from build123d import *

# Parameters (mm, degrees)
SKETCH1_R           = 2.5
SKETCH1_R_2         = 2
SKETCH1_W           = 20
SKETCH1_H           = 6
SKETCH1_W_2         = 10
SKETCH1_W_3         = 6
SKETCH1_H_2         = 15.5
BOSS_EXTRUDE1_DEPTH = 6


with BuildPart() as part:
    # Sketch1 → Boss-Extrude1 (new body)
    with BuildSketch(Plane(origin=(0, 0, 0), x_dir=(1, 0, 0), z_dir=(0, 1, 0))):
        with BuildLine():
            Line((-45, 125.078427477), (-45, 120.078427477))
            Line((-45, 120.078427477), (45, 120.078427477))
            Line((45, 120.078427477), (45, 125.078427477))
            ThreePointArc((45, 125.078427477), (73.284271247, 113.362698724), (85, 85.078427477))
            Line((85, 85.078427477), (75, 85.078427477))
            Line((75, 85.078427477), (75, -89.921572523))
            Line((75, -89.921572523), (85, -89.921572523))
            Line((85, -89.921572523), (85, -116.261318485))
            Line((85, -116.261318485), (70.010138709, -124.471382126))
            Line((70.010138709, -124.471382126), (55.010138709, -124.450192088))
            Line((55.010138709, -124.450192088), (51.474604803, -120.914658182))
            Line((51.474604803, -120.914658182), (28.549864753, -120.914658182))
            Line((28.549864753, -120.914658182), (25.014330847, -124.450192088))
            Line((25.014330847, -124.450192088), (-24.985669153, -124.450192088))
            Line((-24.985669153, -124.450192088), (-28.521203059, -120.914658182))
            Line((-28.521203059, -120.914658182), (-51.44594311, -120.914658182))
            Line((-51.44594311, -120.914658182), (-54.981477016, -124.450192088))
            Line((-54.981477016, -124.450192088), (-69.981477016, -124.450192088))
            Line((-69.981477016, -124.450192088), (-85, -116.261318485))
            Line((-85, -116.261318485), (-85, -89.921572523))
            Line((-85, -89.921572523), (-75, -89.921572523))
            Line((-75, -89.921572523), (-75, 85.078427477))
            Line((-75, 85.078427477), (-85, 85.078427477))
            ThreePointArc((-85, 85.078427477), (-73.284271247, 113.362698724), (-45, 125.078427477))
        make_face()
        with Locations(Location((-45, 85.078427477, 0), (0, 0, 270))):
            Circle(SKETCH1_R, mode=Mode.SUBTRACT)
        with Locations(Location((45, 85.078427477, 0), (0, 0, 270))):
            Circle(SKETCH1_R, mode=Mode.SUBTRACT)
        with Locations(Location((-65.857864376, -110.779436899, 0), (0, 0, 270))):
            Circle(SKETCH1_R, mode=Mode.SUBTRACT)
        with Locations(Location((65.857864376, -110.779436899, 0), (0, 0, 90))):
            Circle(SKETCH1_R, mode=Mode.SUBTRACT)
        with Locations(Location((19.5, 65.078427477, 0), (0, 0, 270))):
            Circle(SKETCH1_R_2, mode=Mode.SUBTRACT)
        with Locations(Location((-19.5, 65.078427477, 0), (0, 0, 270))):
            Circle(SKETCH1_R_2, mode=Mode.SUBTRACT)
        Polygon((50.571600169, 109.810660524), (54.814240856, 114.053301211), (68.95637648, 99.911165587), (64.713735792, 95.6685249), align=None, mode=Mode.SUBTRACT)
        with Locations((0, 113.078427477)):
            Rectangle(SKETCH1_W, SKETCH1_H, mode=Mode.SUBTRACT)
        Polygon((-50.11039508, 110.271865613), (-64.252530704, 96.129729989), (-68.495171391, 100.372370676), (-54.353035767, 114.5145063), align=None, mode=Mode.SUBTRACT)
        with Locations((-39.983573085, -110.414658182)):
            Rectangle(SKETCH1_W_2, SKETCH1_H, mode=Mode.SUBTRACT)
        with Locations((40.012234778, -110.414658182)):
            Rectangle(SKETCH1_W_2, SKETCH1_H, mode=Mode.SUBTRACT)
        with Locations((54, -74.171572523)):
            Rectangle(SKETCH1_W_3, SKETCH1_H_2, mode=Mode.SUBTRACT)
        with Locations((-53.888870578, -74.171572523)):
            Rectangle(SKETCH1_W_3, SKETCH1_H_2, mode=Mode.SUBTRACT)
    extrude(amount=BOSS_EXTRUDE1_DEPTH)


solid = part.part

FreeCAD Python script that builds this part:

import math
import FreeCAD as App
import Part
import Sketcher
from FreeCAD import Vector

doc = App.newDocument("Part")
body = doc.addObject("PartDesign::Body", "Body")

# Sketch on XZ plane
sketch1 = doc.addObject("Sketcher::SketchObject", "Sketch")
body.addObject(sketch1)
sketch1.AttachmentSupport = (doc.XZ_Plane, [""])
sketch1.MapMode = "FlatFace"
sketch1.addGeometry(Part.LineSegment(Vector(-45, -120.1, 0), Vector(-45, -125.1, 0)), False)
sketch1.addGeometry(Part.ArcOfCircle(Part.Circle(Vector(-45, -85.1, 0), Vector(0, 0, 1), 40), math.radians(-180), math.radians(-90)), False)
sketch1.addGeometry(Part.LineSegment(Vector(-85, -85.1, 0), Vector(-75, -85.1, 0)), False)
sketch1.addGeometry(Part.LineSegment(Vector(-75, -85.1, 0), Vector(-75, 89.9, 0)), False)
sketch1.addGeometry(Part.LineSegment(Vector(-75, 89.9, 0), Vector(-85, 89.9, 0)), False)
sketch1.addGeometry(Part.LineSegment(Vector(-85, 89.9, 0), Vector(-85, 116.3, 0)), False)
sketch1.addGeometry(Part.LineSegment(Vector(-85, 116.3, 0), Vector(-70, 124.5, 0)), False)
sketch1.addGeometry(Part.LineSegment(Vector(-70, 124.5, 0), Vector(-55, 124.5, 0)), False)
sketch1.addGeometry(Part.LineSegment(Vector(-55, 124.5, 0), Vector(-51.4, 120.9, 0)), False)
sketch1.addGeometry(Part.LineSegment(Vector(-51.4, 120.9, 0), Vector(-28.5, 120.9, 0)), False)
sketch1.addGeometry(Part.LineSegment(Vector(-28.5, 120.9, 0), Vector(-25, 124.5, 0)), False)
sketch1.addGeometry(Part.LineSegment(Vector(-25, 124.5, 0), Vector(25, 124.5, 0)), False)
sketch1.addGeometry(Part.LineSegment(Vector(25, 124.5, 0), Vector(28.5, 120.9, 0)), False)
sketch1.addGeometry(Part.LineSegment(Vector(28.5, 120.9, 0), Vector(51.5, 120.9, 0)), False)
sketch1.addGeometry(Part.LineSegment(Vector(51.5, 120.9, 0), Vector(55, 124.5, 0)), False)
sketch1.addGeometry(Part.LineSegment(Vector(55, 124.5, 0), Vector(70, 124.5, 0)), False)
sketch1.addGeometry(Part.LineSegment(Vector(70, 124.5, 0), Vector(85, 116.3, 0)), False)
sketch1.addGeometry(Part.LineSegment(Vector(85, 116.3, 0), Vector(85, 89.9, 0)), False)
sketch1.addGeometry(Part.LineSegment(Vector(85, 89.9, 0), Vector(75, 89.9, 0)), False)
sketch1.addGeometry(Part.LineSegment(Vector(75, 89.9, 0), Vector(75, -85.1, 0)), False)
sketch1.addGeometry(Part.LineSegment(Vector(75, -85.1, 0), Vector(85, -85.1, 0)), False)
sketch1.addGeometry(Part.ArcOfCircle(Part.Circle(Vector(45, -85.1, 0), Vector(0, 0, 1), 40), math.radians(-90), math.radians(0)), False)
sketch1.addGeometry(Part.LineSegment(Vector(45, -125.1, 0), Vector(45, -120.1, 0)), False)
sketch1.addGeometry(Part.LineSegment(Vector(45, -120.1, 0), Vector(-45, -120.1, 0)), False)
sketch1.addGeometry(Part.Circle(Vector(65.9, 110.8, 0), Vector(0, 0, 1), 2.5), False)
sketch1.addGeometry(Part.LineSegment(Vector(35, 113.4, 0), Vector(35, 107.4, 0)), False)
sketch1.addGeometry(Part.LineSegment(Vector(35, 107.4, 0), Vector(45, 107.4, 0)), False)
sketch1.addGeometry(Part.LineSegment(Vector(45, 107.4, 0), Vector(45, 113.4, 0)), False)
sketch1.addGeometry(Part.LineSegment(Vector(45, 113.4, 0), Vector(35, 113.4, 0)), False)
sketch1.addGeometry(Part.LineSegment(Vector(51, 81.9, 0), Vector(51, 66.4, 0)), False)
sketch1.addGeometry(Part.LineSegment(Vector(51, 66.4, 0), Vector(57, 66.4, 0)), False)
sketch1.addGeometry(Part.LineSegment(Vector(57, 66.4, 0), Vector(57, 81.9, 0)), False)
sketch1.addGeometry(Part.LineSegment(Vector(57, 81.9, 0), Vector(51, 81.9, 0)), False)
sketch1.addGeometry(Part.LineSegment(Vector(-45, 113.4, 0), Vector(-45, 107.4, 0)), False)
sketch1.addGeometry(Part.LineSegment(Vector(-45, 107.4, 0), Vector(-35, 107.4, 0)), False)
sketch1.addGeometry(Part.LineSegment(Vector(-35, 107.4, 0), Vector(-35, 113.4, 0)), False)
sketch1.addGeometry(Part.LineSegment(Vector(-35, 113.4, 0), Vector(-45, 113.4, 0)), False)
sketch1.addGeometry(Part.Circle(Vector(-65.9, 110.8, 0), Vector(0, 0, 1), 2.5), False)
sketch1.addGeometry(Part.LineSegment(Vector(-56.9, 81.9, 0), Vector(-56.9, 66.4, 0)), False)
sketch1.addGeometry(Part.LineSegment(Vector(-56.9, 66.4, 0), Vector(-50.9, 66.4, 0)), False)
sketch1.addGeometry(Part.LineSegment(Vector(-50.9, 66.4, 0), Vector(-50.9, 81.9, 0)), False)
sketch1.addGeometry(Part.LineSegment(Vector(-50.9, 81.9, 0), Vector(-56.9, 81.9, 0)), False)
sketch1.addGeometry(Part.Circle(Vector(45, -85.1, 0), Vector(0, 0, 1), 2.5), False)
sketch1.addGeometry(Part.LineSegment(Vector(50.6, -109.8, 0), Vector(54.8, -114.1, 0)), False)
sketch1.addGeometry(Part.LineSegment(Vector(54.8, -114.1, 0), Vector(69, -99.9, 0)), False)
sketch1.addGeometry(Part.LineSegment(Vector(69, -99.9, 0), Vector(64.7, -95.7, 0)), False)
sketch1.addGeometry(Part.LineSegment(Vector(64.7, -95.7, 0), Vector(50.6, -109.8, 0)), False)
sketch1.addGeometry(Part.Circle(Vector(19.5, -65.1, 0), Vector(0, 0, 1), 2), False)
sketch1.addGeometry(Part.Circle(Vector(-19.5, -65.1, 0), Vector(0, 0, 1), 2), False)
sketch1.addGeometry(Part.LineSegment(Vector(-10, -110.1, 0), Vector(-10, -116.1, 0)), False)
sketch1.addGeometry(Part.LineSegment(Vector(-10, -116.1, 0), Vector(10, -116.1, 0)), False)
sketch1.addGeometry(Part.LineSegment(Vector(10, -116.1, 0), Vector(10, -110.1, 0)), False)
sketch1.addGeometry(Part.LineSegment(Vector(10, -110.1, 0), Vector(-10, -110.1, 0)), False)
sketch1.addGeometry(Part.Circle(Vector(-45, -85.1, 0), Vector(0, 0, 1), 2.5), False)
sketch1.addGeometry(Part.LineSegment(Vector(-50.1, -110.3, 0), Vector(-64.3, -96.1, 0)), False)
sketch1.addGeometry(Part.LineSegment(Vector(-64.3, -96.1, 0), Vector(-68.5, -100.4, 0)), False)
sketch1.addGeometry(Part.LineSegment(Vector(-68.5, -100.4, 0), Vector(-54.4, -114.5, 0)), False)
sketch1.addGeometry(Part.LineSegment(Vector(-54.4, -114.5, 0), Vector(-50.1, -110.3, 0)), False)
sketch1.addConstraint(Sketcher.Constraint("Coincident", 0, 2, 1, 2))
sketch1.addConstraint(Sketcher.Constraint("Coincident", 1, 1, 2, 1))
sketch1.addConstraint(Sketcher.Constraint("Coincident", 2, 2, 3, 1))
sketch1.addConstraint(Sketcher.Constraint("Coincident", 3, 2, 4, 1))
sketch1.addConstraint(Sketcher.Constraint("Coincident", 4, 2, 5, 1))
sketch1.addConstraint(Sketcher.Constraint("Coincident", 5, 2, 6, 1))
sketch1.addConstraint(Sketcher.Constraint("Coincident", 6, 2, 7, 1))
sketch1.addConstraint(Sketcher.Constraint("Coincident", 7, 2, 8, 1))
sketch1.addConstraint(Sketcher.Constraint("Coincident", 8, 2, 9, 1))
sketch1.addConstraint(Sketcher.Constraint("Coincident", 9, 2, 10, 1))
sketch1.addConstraint(Sketcher.Constraint("Coincident", 10, 2, 11, 1))
sketch1.addConstraint(Sketcher.Constraint("Coincident", 11, 2, 12, 1))
sketch1.addConstraint(Sketcher.Constraint("Coincident", 12, 2, 13, 1))
sketch1.addConstraint(Sketcher.Constraint("Coincident", 13, 2, 14, 1))
sketch1.addConstraint(Sketcher.Constraint("Coincident", 14, 2, 15, 1))
sketch1.addConstraint(Sketcher.Constraint("Coincident", 15, 2, 16, 1))
sketch1.addConstraint(Sketcher.Constraint("Coincident", 16, 2, 17, 1))
sketch1.addConstraint(Sketcher.Constraint("Coincident", 17, 2, 18, 1))
sketch1.addConstraint(Sketcher.Constraint("Coincident", 18, 2, 19, 1))
sketch1.addConstraint(Sketcher.Constraint("Coincident", 19, 2, 20, 1))
sketch1.addConstraint(Sketcher.Constraint("Coincident", 20, 2, 21, 2))
sketch1.addConstraint(Sketcher.Constraint("Coincident", 21, 1, 22, 1))
sketch1.addConstraint(Sketcher.Constraint("Coincident", 22, 2, 23, 1))
sketch1.addConstraint(Sketcher.Constraint("Coincident", 23, 2, 0, 1))
sketch1.addConstraint(Sketcher.Constraint("Coincident", 25, 2, 26, 1))
sketch1.addConstraint(Sketcher.Constraint("Coincident", 26, 2, 27, 1))
sketch1.addConstraint(Sketcher.Constraint("Coincident", 27, 2, 28, 1))
sketch1.addConstraint(Sketcher.Constraint("Coincident", 28, 2, 25, 1))
sketch1.addConstraint(Sketcher.Constraint("Coincident", 29, 2, 30, 1))
sketch1.addConstraint(Sketcher.Constraint("Coincident", 30, 2, 31, 1))
sketch1.addConstraint(Sketcher.Constraint("Coincident", 31, 2, 32, 1))
sketch1.addConstraint(Sketcher.Constraint("Coincident", 32, 2, 29, 1))
sketch1.addConstraint(Sketcher.Constraint("Coincident", 33, 2, 34, 1))
sketch1.addConstraint(Sketcher.Constraint("Coincident", 34, 2, 35, 1))
sketch1.addConstraint(Sketcher.Constraint("Coincident", 35, 2, 36, 1))
sketch1.addConstraint(Sketcher.Constraint("Coincident", 36, 2, 33, 1))
sketch1.addConstraint(Sketcher.Constraint("Coincident", 38, 2, 39, 1))
sketch1.addConstraint(Sketcher.Constraint("Coincident", 39, 2, 40, 1))
sketch1.addConstraint(Sketcher.Constraint("Coincident", 40, 2, 41, 1))
sketch1.addConstraint(Sketcher.Constraint("Coincident", 41, 2, 38, 1))
sketch1.addConstraint(Sketcher.Constraint("Coincident", 43, 2, 44, 1))
sketch1.addConstraint(Sketcher.Constraint("Coincident", 44, 2, 45, 1))
sketch1.addConstraint(Sketcher.Constraint("Coincident", 45, 2, 46, 1))
sketch1.addConstraint(Sketcher.Constraint("Coincident", 46, 2, 43, 1))
sketch1.addConstraint(Sketcher.Constraint("Coincident", 49, 2, 50, 1))
sketch1.addConstraint(Sketcher.Constraint("Coincident", 50, 2, 51, 1))
sketch1.addConstraint(Sketcher.Constraint("Coincident", 51, 2, 52, 1))
sketch1.addConstraint(Sketcher.Constraint("Coincident", 52, 2, 49, 1))
sketch1.addConstraint(Sketcher.Constraint("Coincident", 54, 2, 55, 1))
sketch1.addConstraint(Sketcher.Constraint("Coincident", 55, 2, 56, 1))
sketch1.addConstraint(Sketcher.Constraint("Coincident", 56, 2, 57, 1))
sketch1.addConstraint(Sketcher.Constraint("Coincident", 57, 2, 54, 1))
sketch1.addConstraint(Sketcher.Constraint("Vertical", 0))
sketch1.addConstraint(Sketcher.Constraint("Horizontal", 2))
sketch1.addConstraint(Sketcher.Constraint("Vertical", 3))
sketch1.addConstraint(Sketcher.Constraint("Horizontal", 4))
sketch1.addConstraint(Sketcher.Constraint("Vertical", 5))
sketch1.addConstraint(Sketcher.Constraint("Horizontal", 7))
sketch1.addConstraint(Sketcher.Constraint("Horizontal", 9))
sketch1.addConstraint(Sketcher.Constraint("Horizontal", 11))
sketch1.addConstraint(Sketcher.Constraint("Horizontal", 13))
sketch1.addConstraint(Sketcher.Constraint("Vertical", 17))
sketch1.addConstraint(Sketcher.Constraint("Horizontal", 18))
sketch1.addConstraint(Sketcher.Constraint("Vertical", 19))
sketch1.addConstraint(Sketcher.Constraint("Horizontal", 20))
sketch1.addConstraint(Sketcher.Constraint("Vertical", 22))
sketch1.addConstraint(Sketcher.Constraint("Horizontal", 23))
sketch1.addConstraint(Sketcher.Constraint("Vertical", 25))
sketch1.addConstraint(Sketcher.Constraint("Horizontal", 26))
sketch1.addConstraint(Sketcher.Constraint("Vertical", 27))
sketch1.addConstraint(Sketcher.Constraint("Horizontal", 28))
sketch1.addConstraint(Sketcher.Constraint("Vertical", 29))
sketch1.addConstraint(Sketcher.Constraint("Horizontal", 30))
sketch1.addConstraint(Sketcher.Constraint("Vertical", 31))
sketch1.addConstraint(Sketcher.Constraint("Horizontal", 32))
sketch1.addConstraint(Sketcher.Constraint("Vertical", 33))
sketch1.addConstraint(Sketcher.Constraint("Horizontal", 34))
sketch1.addConstraint(Sketcher.Constraint("Vertical", 35))
sketch1.addConstraint(Sketcher.Constraint("Horizontal", 36))
sketch1.addConstraint(Sketcher.Constraint("Vertical", 38))
sketch1.addConstraint(Sketcher.Constraint("Horizontal", 39))
sketch1.addConstraint(Sketcher.Constraint("Vertical", 40))
sketch1.addConstraint(Sketcher.Constraint("Horizontal", 41))
sketch1.addConstraint(Sketcher.Constraint("Vertical", 49))
sketch1.addConstraint(Sketcher.Constraint("Horizontal", 50))
sketch1.addConstraint(Sketcher.Constraint("Vertical", 51))
sketch1.addConstraint(Sketcher.Constraint("Horizontal", 52))
sketch1.addConstraint(Sketcher.Constraint("Coincident", 42, 3, 21, 3))
sketch1.addConstraint(Sketcher.Constraint("Coincident", 53, 3, 1, 3))
sketch1.addConstraint(Sketcher.Constraint("Equal", 1, 21))
sketch1.addConstraint(Sketcher.Constraint("Equal", 24, 37))
sketch1.addConstraint(Sketcher.Constraint("Equal", 37, 42))
sketch1.addConstraint(Sketcher.Constraint("Equal", 47, 48))
sketch1.addConstraint(Sketcher.Constraint("Equal", 42, 53))
sketch1.addConstraint(Sketcher.Constraint("Symmetric", 1, 3, 21, 3, -2))
sketch1.addConstraint(Sketcher.Constraint("Symmetric", 24, 3, 37, 3, -2))
sketch1.addConstraint(Sketcher.Constraint("Symmetric", 47, 3, 48, 3, -2))
sketch1.addConstraint(Sketcher.Constraint("Symmetric", 5, 2, 16, 2, -2))
sketch1.addConstraint(Sketcher.Constraint("Symmetric", 3, 2, 18, 2, -2))
sketch1.addConstraint(Sketcher.Constraint("Perpendicular", 8, 10))
sketch1.addConstraint(Sketcher.Constraint("Perpendicular", 10, 12))
sketch1.addConstraint(Sketcher.Constraint("Perpendicular", 12, 14))
sketch1.addConstraint(Sketcher.Constraint("Perpendicular", 14, 43))
sketch1.addConstraint(Sketcher.Constraint("Perpendicular", 43, 44))
sketch1.addConstraint(Sketcher.Constraint("Perpendicular", 44, 45))
sketch1.addConstraint(Sketcher.Constraint("Perpendicular", 45, 46))
sketch1.addConstraint(Sketcher.Constraint("Perpendicular", 46, 54))
sketch1.addConstraint(Sketcher.Constraint("Perpendicular", 54, 55))
sketch1.addConstraint(Sketcher.Constraint("Perpendicular", 55, 56))
sketch1.addConstraint(Sketcher.Constraint("Perpendicular", 56, 57))
sketch1.addConstraint(Sketcher.Constraint("Horizontal", 53, 3, 1, 1))
sketch1.addConstraint(Sketcher.Constraint("Horizontal", 7, 2, 10, 2))
sketch1.addConstraint(Sketcher.Constraint("Horizontal", 9, 2, 12, 2))
sketch1.addConstraint(Sketcher.Constraint("Horizontal", 11, 2, 14, 2))
sketch1.addConstraint(Sketcher.Constraint("Horizontal", 2, 2, 19, 2))
sketch1.addConstraint(Sketcher.Constraint("Horizontal", 26, 2, 33, 2))
sketch1.addConstraint(Sketcher.Constraint("Horizontal", 28, 2, 35, 2))
sketch1.addConstraint(Sketcher.Constraint("Horizontal", 30, 2, 38, 2))
sketch1.addConstraint(Sketcher.Constraint("Horizontal", 32, 2, 40, 2))
sketch1.addConstraint(Sketcher.Constraint("Vertical", 53, 3, 0, 2))
sketch1.addConstraint(Sketcher.Constraint("Vertical", 1, 1, 4, 2))
sketch1.addConstraint(Sketcher.Constraint("Vertical", 42, 3, 21, 1))
sketch1.addConstraint(Sketcher.Constraint("Equal", 9, 13))
sketch1.addConstraint(Sketcher.Constraint("Equal", 20, 26))
sketch1.addConstraint(Sketcher.Constraint("Equal", 28, 34))
sketch1.addConstraint(Sketcher.Constraint("Equal", 32, 39))
sketch1.addConstraint(Sketcher.Constraint("Equal", 41, 25))
sketch1.addConstraint(Sketcher.Constraint("Equal", 35, 49))
sketch1.addConstraint(Sketcher.Constraint("Equal", 8, 10))
sketch1.addConstraint(Sketcher.Constraint("Equal", 46, 54))
sketch1.addConstraint(Sketcher.Constraint("Equal", 45, 55))
sketch1.addConstraint(Sketcher.Constraint("Diameter", 24, 5.0))
sketch1.addConstraint(Sketcher.Constraint("Diameter", 47, 4.0))
sketch1.addConstraint(Sketcher.Constraint("Radius", 1, 40.0))
sketch1.addConstraint(Sketcher.Constraint("DistanceX", 2, 1, 2, 2, 10.0))
sketch1.addConstraint(Sketcher.Constraint("DistanceX", 7, 1, 7, 2, 15.0))
sketch1.addConstraint(Sketcher.Constraint("DistanceX", 11, 1, 11, 2, 50.0))
sketch1.addConstraint(Sketcher.Constraint("DistanceX", 23, 2, 23, 1, 90.0))
sketch1.addConstraint(Sketcher.Constraint("DistanceX", 30, 1, 30, 2, 6.0))
sketch1.addConstraint(Sketcher.Constraint("DistanceX", 50, 1, 50, 2, 20.0))
sketch1.addConstraint(Sketcher.Constraint("DistanceY", 0, 2, 0, 1, 5.0))
sketch1.addConstraint(Sketcher.Constraint("DistanceY", 3, 1, 3, 2, 175.0))
sketch1.addConstraint(Sketcher.Constraint("Distance", 8, 5.0))
sketch1.addConstraint(Sketcher.Constraint("Distance", 43, 6.0))
sketch1.addConstraint(Sketcher.Constraint("Distance", 44, 20.0))
sketch1.addConstraint(Sketcher.Constraint("DistanceY", 29, 2, 29, 1, 15.5))
sketch1.addConstraint(Sketcher.Constraint("DistanceX", -1, 1, 29, 2, 51.0))
sketch1.addConstraint(Sketcher.Constraint("DistanceX", 49, 2, -1, 1, 10.0))
sketch1.addConstraint(Sketcher.Constraint("DistanceY", 21, 3, 47, 3, 20.0))
sketch1.addConstraint(Sketcher.Constraint("DistanceX", 48, 3, 47, 3, 39.0))
sketch1.addConstraint(Sketcher.Constraint("DistanceX", 14, 2, 15, 2, 15.0))
sketch1.addConstraint(Sketcher.Constraint("DistanceY", 31, 2, 18, 2, 8.0))
sketch1.addConstraint(Sketcher.Constraint("DistanceY", 23, 2, 49, 2, 4.0))
sketch1.addConstraint(Sketcher.Constraint("DistanceY", 25, 2, 12, 2, 13.5))
sketch1.addConstraint(Sketcher.Constraint("DistanceX", 12, 2, 24, 3, 37.308))
sketch1.addConstraint(Sketcher.Constraint("DistanceX", 9, 1, 9, 2, 22.92474))
sketch1.addConstraint(Sketcher.Constraint("DistanceY", 43, 2, -1, 1, 114.053301))
sketch1.addConstraint(Sketcher.Constraint("DistanceX", -1, 1, 46, 2, 50.5716))
sketch1.addConstraint(Sketcher.Constraint("DistanceY", 5, 1, 5, 2, 26.339746))
sketch1.addConstraint(Sketcher.Constraint("DistanceY", -1, 1, 5, 2, 116.261318))
sketch1.addConstraint(Sketcher.Constraint("DistanceY", -1, 1, 8, 2, 120.914658))
sketch1.addConstraint(Sketcher.Constraint("DistanceX", 10, 2, -1, 1, 24.985669))
sketch1.addConstraint(Sketcher.Constraint("DistanceX", 38, 2, -1, 1, 56.888871))
sketch1.addConstraint(Sketcher.Constraint("DistanceX", 54, 2, -1, 1, 64.252531))
sketch1.addConstraint(Sketcher.Constraint("DistanceY", 54, 2, -1, 1, 96.12973))
sketch1.addConstraint(Sketcher.Constraint("DistanceY", 37, 3, 5, 2, 5.481882))
sketch1.addConstraint(Sketcher.Constraint("DistanceY", 14, 2, 15, 2, 0.02119))
sketch1.addConstraint(Sketcher.Constraint("DistanceX", 12, 2, 25, 2, 6.46237))
sketch1.addConstraint(Sketcher.Constraint("DistanceX", 8, 2, 33, 2, 6.46237))
pad1 = doc.addObject("PartDesign::Pad", "Pad")
body.addObject(pad1)
pad1.Profile = sketch1
pad1.Length = 6
pad1.Reversed = True

doc.recompute()
